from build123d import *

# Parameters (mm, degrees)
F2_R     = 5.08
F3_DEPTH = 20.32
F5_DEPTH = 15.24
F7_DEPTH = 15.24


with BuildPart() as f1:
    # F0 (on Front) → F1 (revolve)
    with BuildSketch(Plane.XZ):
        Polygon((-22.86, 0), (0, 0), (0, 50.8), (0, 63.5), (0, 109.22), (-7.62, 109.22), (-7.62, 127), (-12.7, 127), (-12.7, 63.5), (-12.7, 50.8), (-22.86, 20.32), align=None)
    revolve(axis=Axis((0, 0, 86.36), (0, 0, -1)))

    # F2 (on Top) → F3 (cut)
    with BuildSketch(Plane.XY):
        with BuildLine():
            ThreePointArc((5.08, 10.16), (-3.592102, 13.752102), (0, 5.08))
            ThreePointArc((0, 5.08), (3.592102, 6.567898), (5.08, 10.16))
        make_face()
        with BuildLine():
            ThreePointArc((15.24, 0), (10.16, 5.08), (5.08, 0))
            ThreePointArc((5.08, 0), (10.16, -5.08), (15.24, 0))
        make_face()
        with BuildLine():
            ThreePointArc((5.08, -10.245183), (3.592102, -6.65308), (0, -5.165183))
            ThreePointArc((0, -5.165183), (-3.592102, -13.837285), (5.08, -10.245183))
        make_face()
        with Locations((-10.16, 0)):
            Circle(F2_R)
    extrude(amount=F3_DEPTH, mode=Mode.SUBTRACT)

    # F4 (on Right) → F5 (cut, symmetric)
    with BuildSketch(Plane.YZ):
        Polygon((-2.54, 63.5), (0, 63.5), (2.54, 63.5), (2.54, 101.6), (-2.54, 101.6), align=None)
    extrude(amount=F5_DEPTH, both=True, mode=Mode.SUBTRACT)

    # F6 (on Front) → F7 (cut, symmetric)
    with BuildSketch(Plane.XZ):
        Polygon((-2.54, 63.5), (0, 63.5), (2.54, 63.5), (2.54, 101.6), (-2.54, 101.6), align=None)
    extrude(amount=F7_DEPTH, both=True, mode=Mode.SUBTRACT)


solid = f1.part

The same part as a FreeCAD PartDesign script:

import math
import FreeCAD as App
import Part
import Sketcher
Q = App.Units.Quantity

doc = App.newDocument("Part")
params = doc.addObject("Spreadsheet::Sheet", "Params")
for row, (alias, value) in enumerate([
    ("sketch1_height", "3 in"),
    ("sketch1_width", "0.9 in"),
    ("sketch1_width2", "0.3 in"),
    ("sketch1_width3", "0.2 in"),
    ("sketch1_height2", "4.3 in"),
    ("revolution_angle", "360 deg"),
    ("sketch2_diameter", "0.4 in"),
    ("pocket1_length", "0.8 in"),
    ("sketch3_width", "0.2 in"),
    ("sketch3_height", "1.5 in"),
    ("pocket2_length", "1.2 in"),
    ("sketch4_width", "0.2 in"),
    ("sketch4_height", "1.5 in"),
    ("pocket3_length", "1.2 in"),
], start=1):
    params.set(f"A{row}", alias)
    params.set(f"B{row}", "=" + value)
    params.setAlias(f"B{row}", alias)

body = doc.addObject("PartDesign::Body", "Body")

# Sketch on XZ plane
sketch1 = body.newObject("Sketcher::SketchObject", "Sketch")
sketch1.AttachmentSupport = (doc.getObject("XZ_Plane"), [""])
sketch1.MapMode = "FlatFace"
sketch1.addGeometry(Part.LineSegment(App.Vector(-23, 0, 0), App.Vector(0, 0, 0)), False)
sketch1.addGeometry(Part.LineSegment(App.Vector(0, 0, 0), App.Vector(0, 109, 0)), False)
sketch1.addGeometry(Part.LineSegment(App.Vector(0, 109, 0), App.Vector(-8, 109, 0)), False)
sketch1.addGeometry(Part.LineSegment(App.Vector(-8, 109, 0), App.Vector(-8, 127, 0)), False)
sketch1.addGeometry(Part.LineSegment(App.Vector(-8, 127, 0), App.Vector(-13, 127, 0)), False)
sketch1.addGeometry(Part.LineSegment(App.Vector(-13, 127, 0), App.Vector(-13, 51, 0)), False)
sketch1.addGeometry(Part.LineSegment(App.Vector(-13, 51, 0), App.Vector(-23, 20, 0)), False)
sketch1.addGeometry(Part.LineSegment(App.Vector(-23, 20, 0), App.Vector(-23, 0, 0)), False)
sketch1.addConstraint(Sketcher.Constraint("Coincident", 0, 2, 1, 1))
sketch1.addConstraint(Sketcher.Constraint("Coincident", 1, 2, 2, 1))
sketch1.addConstraint(Sketcher.Constraint("Coincident", 2, 2, 3, 1))
sketch1.addConstraint(Sketcher.Constraint("Coincident", 3, 2, 4, 1))
sketch1.addConstraint(Sketcher.Constraint("Coincident", 4, 2, 5, 1))
sketch1.addConstraint(Sketcher.Constraint("Coincident", 5, 2, 6, 1))
sketch1.addConstraint(Sketcher.Constraint("Coincident", 6, 2, 7, 1))
sketch1.addConstraint(Sketcher.Constraint("Coincident", 7, 2, 0, 1))
sketch1.addConstraint(Sketcher.Constraint("Horizontal", 0))
sketch1.addConstraint(Sketcher.Constraint("Vertical", 1))
sketch1.addConstraint(Sketcher.Constraint("Horizontal", 2))
sketch1.addConstraint(Sketcher.Constraint("Vertical", 3))
sketch1.addConstraint(Sketcher.Constraint("Horizontal", 4))
sketch1.addConstraint(Sketcher.Constraint("Vertical", 5))
sketch1.addConstraint(Sketcher.Constraint("Vertical", 7))
sketch1.addConstraint(Sketcher.Constraint("Coincident", 0, 2, -1, 1))
sketch1.addConstraint(Sketcher.Constraint("DistanceY", 5, 2, 5, 1, Q("3 in")))
sketch1.addConstraint(Sketcher.Constraint("DistanceX", 0, 1, 0, 2, Q("0.9 in")))
sketch1.addConstraint(Sketcher.Constraint("DistanceX", 2, 2, 2, 1, Q("0.3 in")))
sketch1.addConstraint(Sketcher.Constraint("DistanceX", 4, 2, 4, 1, Q("0.2 in")))
sketch1.addConstraint(Sketcher.Constraint("DistanceY", 1, 1, 1, 2, Q("4.3 in")))
sketch1.addConstraint(Sketcher.Constraint("DistanceY", 3, 1, 3, 2, Q("0.7 in")))
sketch1.addConstraint(Sketcher.Constraint("DistanceY", 7, 2, 7, 1, Q("0.8 in")))
sketch1.setExpression("Constraints[16]", "Params.sketch1_height")
sketch1.setExpression("Constraints[17]", "Params.sketch1_width")
sketch1.setExpression("Constraints[18]", "Params.sketch1_width2")
sketch1.setExpression("Constraints[19]", "Params.sketch1_width3")
sketch1.setExpression("Constraints[20]", "Params.sketch1_height2")
revolution = body.newObject("PartDesign::Revolution", "Revolution")
revolution.Profile = sketch1
revolution.ReferenceAxis = (sketch1, ["V_Axis"])
revolution.setExpression("Angle", "Params.revolution_angle")

# Sketch on XY plane
sketch2 = body.newObject("Sketcher::SketchObject", "Sketch001")
sketch2.AttachmentSupport = (doc.getObject("XY_Plane"), [""])
sketch2.MapMode = "FlatFace"
sketch2.addGeometry(Part.ArcOfCircle(Part.Circle(App.Vector(0, 10, 0), App.Vector(0, 0, 1), 5), math.radians(0), math.radians(270)), False)
sketch2.addGeometry(Part.ArcOfCircle(Part.Circle(App.Vector(0, 10, 0), App.Vector(0, 0, 1), 5), math.radians(-90), math.radians(0)), False)
sketch2.addGeometry(Part.Circle(App.Vector(10, 0, 0), App.Vector(0, 0, 1), 5), False)
sketch2.addGeometry(Part.ArcOfCircle(Part.Circle(App.Vector(0, -10, 0), App.Vector(0, 0, 1), 5), math.radians(0), math.radians(90)), False)
sketch2.addGeometry(Part.ArcOfCircle(Part.Circle(App.Vector(0, -10, 0), App.Vector(0, 0, 1), 5), math.radians(90), math.radians(360)), False)
sketch2.addGeometry(Part.Circle(App.Vector(-10, 0, 0), App.Vector(0, 0, 1), 5), False)
sketch2.addConstraint(Sketcher.Constraint("Tangent", 0, 1, 1, 2))
sketch2.addConstraint(Sketcher.Constraint("Coincident", 1, 1, 0, 2))
sketch2.addConstraint(Sketcher.Constraint("Tangent", 3, 1, 4, 2))
sketch2.addConstraint(Sketcher.Constraint("Coincident", 4, 1, 3, 2))
sketch2.addConstraint(Sketcher.Constraint("Equal", 1, 2))
sketch2.addConstraint(Sketcher.Constraint("Equal", 2, 3))
sketch2.addConstraint(Sketcher.Constraint("Equal", 4, 5))
sketch2.addConstraint(Sketcher.Constraint("Symmetric", 2, 3, 5, 3, -1, 1))
sketch2.addConstraint(Sketcher.Constraint("PointOnObject", 0, 3, -2))
sketch2.addConstraint(Sketcher.Constraint("PointOnObject", 2, 3, -1))
sketch2.addConstraint(Sketcher.Constraint("PointOnObject", 3, 3, -2))
sketch2.addConstraint(Sketcher.Constraint("PointOnObject", 1, 1, -2))
sketch2.addConstraint(Sketcher.Constraint("PointOnObject", 4, 1, -2))
sketch2.addConstraint(Sketcher.Constraint("Horizontal", 1, 3, 0, 1))
sketch2.addConstraint(Sketcher.Constraint("Horizontal", 4, 3, 3, 1))
sketch2.addConstraint(Sketcher.Constraint("Diameter", 2, Q("0.4 in")))
sketch2.addConstraint(Sketcher.Constraint("DistanceY", -1, 1, 0, 3, Q("0.4 in")))
sketch2.addConstraint(Sketcher.Constraint("DistanceX", -1, 1, 2, 3, Q("0.4 in")))
sketch2.addConstraint(Sketcher.Constraint("DistanceY", 3, 3, -1, 1, 10.245183))
sketch2.setExpression("Constraints[15]", "Params.sketch2_diameter")
pocket1 = body.newObject("PartDesign::Pocket", "Pocket")
pocket1.Profile = sketch2
pocket1.setExpression("Length", "Params.pocket1_length")
pocket1.Reversed = True

# Sketch on YZ plane
sketch3 = body.newObject("Sketcher::SketchObject", "Sketch002")
sketch3.AttachmentSupport = (doc.getObject("YZ_Plane"), [""])
sketch3.MapMode = "FlatFace"
sketch3.addGeometry(Part.LineSegment(App.Vector(-3, 64, 0), App.Vector(3, 64, 0)), False)
sketch3.addGeometry(Part.LineSegment(App.Vector(3, 64, 0), App.Vector(3, 102, 0)), False)
sketch3.addGeometry(Part.LineSegment(App.Vector(3, 102, 0), App.Vector(-3, 102, 0)), False)
sketch3.addGeometry(Part.LineSegment(App.Vector(-3, 102, 0), App.Vector(-3, 64, 0)), False)
sketch3.addConstraint(Sketcher.Constraint("Coincident", 0, 2, 1, 1))
sketch3.addConstraint(Sketcher.Constraint("Coincident", 1, 2, 2, 1))
sketch3.addConstraint(Sketcher.Constraint("Coincident", 2, 2, 3, 1))
sketch3.addConstraint(Sketcher.Constraint("Coincident", 3, 2, 0, 1))
sketch3.addConstraint(Sketcher.Constraint("Horizontal", 0))
sketch3.addConstraint(Sketcher.Constraint("Vertical", 1))
sketch3.addConstraint(Sketcher.Constraint("Horizontal", 2))
sketch3.addConstraint(Sketcher.Constraint("Vertical", 3))
sketch3.addConstraint(Sketcher.Constraint("DistanceX", 0, 1, 0, 2, Q("0.2 in")))
sketch3.addConstraint(Sketcher.Constraint("DistanceY", 1, 1, 1, 2, Q("1.5 in")))
sketch3.addConstraint(Sketcher.Constraint("DistanceY", -1, 1, 1, 2, Q("4 in")))
sketch3.addConstraint(Sketcher.Constraint("DistanceX", -1, 1, 0, 2, Q("0.1 in")))
sketch3.setExpression("Constraints[8]", "Params.sketch3_width")
sketch3.setExpression("Constraints[9]", "Params.sketch3_height")
pocket2 = body.newObject("PartDesign::Pocket", "Pocket001")
pocket2.Profile = sketch3
pocket2.setExpression("Length", "Params.pocket2_length")
pocket2.Midplane = True

# Sketch on XZ plane
sketch4 = body.newObject("Sketcher::SketchObject", "Sketch003")
sketch4.AttachmentSupport = (doc.getObject("XZ_Plane"), [""])
sketch4.MapMode = "FlatFace"
sketch4.addGeometry(Part.LineSegment(App.Vector(-3, 64, 0), App.Vector(3, 64, 0)), False)
sketch4.addGeometry(Part.LineSegment(App.Vector(3, 64, 0), App.Vector(3, 102, 0)), False)
sketch4.addGeometry(Part.LineSegment(App.Vector(3, 102, 0), App.Vector(-3, 102, 0)), False)
sketch4.addGeometry(Part.LineSegment(App.Vector(-3, 102, 0), App.Vector(-3, 64, 0)), False)
sketch4.addConstraint(Sketcher.Constraint("Coincident", 0, 2, 1, 1))
sketch4.addConstraint(Sketcher.Constraint("Coincident", 1, 2, 2, 1))
sketch4.addConstraint(Sketcher.Constraint("Coincident", 2, 2, 3, 1))
sketch4.addConstraint(Sketcher.Constraint("Coincident", 3, 2, 0, 1))
sketch4.addConstraint(Sketcher.Constraint("Horizontal", 0))
sketch4.addConstraint(Sketcher.Constraint("Vertical", 1))
sketch4.addConstraint(Sketcher.Constraint("Horizontal", 2))
sketch4.addConstraint(Sketcher.Constraint("Vertical", 3))
sketch4.addConstraint(Sketcher.Constraint("DistanceX", 0, 1, 0, 2, Q("0.2 in")))
sketch4.addConstraint(Sketcher.Constraint("DistanceY", 1, 1, 1, 2, Q("1.5 in")))
sketch4.addConstraint(Sketcher.Constraint("DistanceY", -1, 1, 1, 2, Q("4 in")))
sketch4.addConstraint(Sketcher.Constraint("DistanceX", -1, 1, 0, 2, Q("0.1 in")))
sketch4.setExpression("Constraints[8]", "Params.sketch4_width")
sketch4.setExpression("Constraints[9]", "Params.sketch4_height")
pocket3 = body.newObject("PartDesign::Pocket", "Pocket002")
pocket3.Profile = sketch4
pocket3.setExpression("Length", "Params.pocket3_length")
pocket3.Midplane = True

doc.recompute()
